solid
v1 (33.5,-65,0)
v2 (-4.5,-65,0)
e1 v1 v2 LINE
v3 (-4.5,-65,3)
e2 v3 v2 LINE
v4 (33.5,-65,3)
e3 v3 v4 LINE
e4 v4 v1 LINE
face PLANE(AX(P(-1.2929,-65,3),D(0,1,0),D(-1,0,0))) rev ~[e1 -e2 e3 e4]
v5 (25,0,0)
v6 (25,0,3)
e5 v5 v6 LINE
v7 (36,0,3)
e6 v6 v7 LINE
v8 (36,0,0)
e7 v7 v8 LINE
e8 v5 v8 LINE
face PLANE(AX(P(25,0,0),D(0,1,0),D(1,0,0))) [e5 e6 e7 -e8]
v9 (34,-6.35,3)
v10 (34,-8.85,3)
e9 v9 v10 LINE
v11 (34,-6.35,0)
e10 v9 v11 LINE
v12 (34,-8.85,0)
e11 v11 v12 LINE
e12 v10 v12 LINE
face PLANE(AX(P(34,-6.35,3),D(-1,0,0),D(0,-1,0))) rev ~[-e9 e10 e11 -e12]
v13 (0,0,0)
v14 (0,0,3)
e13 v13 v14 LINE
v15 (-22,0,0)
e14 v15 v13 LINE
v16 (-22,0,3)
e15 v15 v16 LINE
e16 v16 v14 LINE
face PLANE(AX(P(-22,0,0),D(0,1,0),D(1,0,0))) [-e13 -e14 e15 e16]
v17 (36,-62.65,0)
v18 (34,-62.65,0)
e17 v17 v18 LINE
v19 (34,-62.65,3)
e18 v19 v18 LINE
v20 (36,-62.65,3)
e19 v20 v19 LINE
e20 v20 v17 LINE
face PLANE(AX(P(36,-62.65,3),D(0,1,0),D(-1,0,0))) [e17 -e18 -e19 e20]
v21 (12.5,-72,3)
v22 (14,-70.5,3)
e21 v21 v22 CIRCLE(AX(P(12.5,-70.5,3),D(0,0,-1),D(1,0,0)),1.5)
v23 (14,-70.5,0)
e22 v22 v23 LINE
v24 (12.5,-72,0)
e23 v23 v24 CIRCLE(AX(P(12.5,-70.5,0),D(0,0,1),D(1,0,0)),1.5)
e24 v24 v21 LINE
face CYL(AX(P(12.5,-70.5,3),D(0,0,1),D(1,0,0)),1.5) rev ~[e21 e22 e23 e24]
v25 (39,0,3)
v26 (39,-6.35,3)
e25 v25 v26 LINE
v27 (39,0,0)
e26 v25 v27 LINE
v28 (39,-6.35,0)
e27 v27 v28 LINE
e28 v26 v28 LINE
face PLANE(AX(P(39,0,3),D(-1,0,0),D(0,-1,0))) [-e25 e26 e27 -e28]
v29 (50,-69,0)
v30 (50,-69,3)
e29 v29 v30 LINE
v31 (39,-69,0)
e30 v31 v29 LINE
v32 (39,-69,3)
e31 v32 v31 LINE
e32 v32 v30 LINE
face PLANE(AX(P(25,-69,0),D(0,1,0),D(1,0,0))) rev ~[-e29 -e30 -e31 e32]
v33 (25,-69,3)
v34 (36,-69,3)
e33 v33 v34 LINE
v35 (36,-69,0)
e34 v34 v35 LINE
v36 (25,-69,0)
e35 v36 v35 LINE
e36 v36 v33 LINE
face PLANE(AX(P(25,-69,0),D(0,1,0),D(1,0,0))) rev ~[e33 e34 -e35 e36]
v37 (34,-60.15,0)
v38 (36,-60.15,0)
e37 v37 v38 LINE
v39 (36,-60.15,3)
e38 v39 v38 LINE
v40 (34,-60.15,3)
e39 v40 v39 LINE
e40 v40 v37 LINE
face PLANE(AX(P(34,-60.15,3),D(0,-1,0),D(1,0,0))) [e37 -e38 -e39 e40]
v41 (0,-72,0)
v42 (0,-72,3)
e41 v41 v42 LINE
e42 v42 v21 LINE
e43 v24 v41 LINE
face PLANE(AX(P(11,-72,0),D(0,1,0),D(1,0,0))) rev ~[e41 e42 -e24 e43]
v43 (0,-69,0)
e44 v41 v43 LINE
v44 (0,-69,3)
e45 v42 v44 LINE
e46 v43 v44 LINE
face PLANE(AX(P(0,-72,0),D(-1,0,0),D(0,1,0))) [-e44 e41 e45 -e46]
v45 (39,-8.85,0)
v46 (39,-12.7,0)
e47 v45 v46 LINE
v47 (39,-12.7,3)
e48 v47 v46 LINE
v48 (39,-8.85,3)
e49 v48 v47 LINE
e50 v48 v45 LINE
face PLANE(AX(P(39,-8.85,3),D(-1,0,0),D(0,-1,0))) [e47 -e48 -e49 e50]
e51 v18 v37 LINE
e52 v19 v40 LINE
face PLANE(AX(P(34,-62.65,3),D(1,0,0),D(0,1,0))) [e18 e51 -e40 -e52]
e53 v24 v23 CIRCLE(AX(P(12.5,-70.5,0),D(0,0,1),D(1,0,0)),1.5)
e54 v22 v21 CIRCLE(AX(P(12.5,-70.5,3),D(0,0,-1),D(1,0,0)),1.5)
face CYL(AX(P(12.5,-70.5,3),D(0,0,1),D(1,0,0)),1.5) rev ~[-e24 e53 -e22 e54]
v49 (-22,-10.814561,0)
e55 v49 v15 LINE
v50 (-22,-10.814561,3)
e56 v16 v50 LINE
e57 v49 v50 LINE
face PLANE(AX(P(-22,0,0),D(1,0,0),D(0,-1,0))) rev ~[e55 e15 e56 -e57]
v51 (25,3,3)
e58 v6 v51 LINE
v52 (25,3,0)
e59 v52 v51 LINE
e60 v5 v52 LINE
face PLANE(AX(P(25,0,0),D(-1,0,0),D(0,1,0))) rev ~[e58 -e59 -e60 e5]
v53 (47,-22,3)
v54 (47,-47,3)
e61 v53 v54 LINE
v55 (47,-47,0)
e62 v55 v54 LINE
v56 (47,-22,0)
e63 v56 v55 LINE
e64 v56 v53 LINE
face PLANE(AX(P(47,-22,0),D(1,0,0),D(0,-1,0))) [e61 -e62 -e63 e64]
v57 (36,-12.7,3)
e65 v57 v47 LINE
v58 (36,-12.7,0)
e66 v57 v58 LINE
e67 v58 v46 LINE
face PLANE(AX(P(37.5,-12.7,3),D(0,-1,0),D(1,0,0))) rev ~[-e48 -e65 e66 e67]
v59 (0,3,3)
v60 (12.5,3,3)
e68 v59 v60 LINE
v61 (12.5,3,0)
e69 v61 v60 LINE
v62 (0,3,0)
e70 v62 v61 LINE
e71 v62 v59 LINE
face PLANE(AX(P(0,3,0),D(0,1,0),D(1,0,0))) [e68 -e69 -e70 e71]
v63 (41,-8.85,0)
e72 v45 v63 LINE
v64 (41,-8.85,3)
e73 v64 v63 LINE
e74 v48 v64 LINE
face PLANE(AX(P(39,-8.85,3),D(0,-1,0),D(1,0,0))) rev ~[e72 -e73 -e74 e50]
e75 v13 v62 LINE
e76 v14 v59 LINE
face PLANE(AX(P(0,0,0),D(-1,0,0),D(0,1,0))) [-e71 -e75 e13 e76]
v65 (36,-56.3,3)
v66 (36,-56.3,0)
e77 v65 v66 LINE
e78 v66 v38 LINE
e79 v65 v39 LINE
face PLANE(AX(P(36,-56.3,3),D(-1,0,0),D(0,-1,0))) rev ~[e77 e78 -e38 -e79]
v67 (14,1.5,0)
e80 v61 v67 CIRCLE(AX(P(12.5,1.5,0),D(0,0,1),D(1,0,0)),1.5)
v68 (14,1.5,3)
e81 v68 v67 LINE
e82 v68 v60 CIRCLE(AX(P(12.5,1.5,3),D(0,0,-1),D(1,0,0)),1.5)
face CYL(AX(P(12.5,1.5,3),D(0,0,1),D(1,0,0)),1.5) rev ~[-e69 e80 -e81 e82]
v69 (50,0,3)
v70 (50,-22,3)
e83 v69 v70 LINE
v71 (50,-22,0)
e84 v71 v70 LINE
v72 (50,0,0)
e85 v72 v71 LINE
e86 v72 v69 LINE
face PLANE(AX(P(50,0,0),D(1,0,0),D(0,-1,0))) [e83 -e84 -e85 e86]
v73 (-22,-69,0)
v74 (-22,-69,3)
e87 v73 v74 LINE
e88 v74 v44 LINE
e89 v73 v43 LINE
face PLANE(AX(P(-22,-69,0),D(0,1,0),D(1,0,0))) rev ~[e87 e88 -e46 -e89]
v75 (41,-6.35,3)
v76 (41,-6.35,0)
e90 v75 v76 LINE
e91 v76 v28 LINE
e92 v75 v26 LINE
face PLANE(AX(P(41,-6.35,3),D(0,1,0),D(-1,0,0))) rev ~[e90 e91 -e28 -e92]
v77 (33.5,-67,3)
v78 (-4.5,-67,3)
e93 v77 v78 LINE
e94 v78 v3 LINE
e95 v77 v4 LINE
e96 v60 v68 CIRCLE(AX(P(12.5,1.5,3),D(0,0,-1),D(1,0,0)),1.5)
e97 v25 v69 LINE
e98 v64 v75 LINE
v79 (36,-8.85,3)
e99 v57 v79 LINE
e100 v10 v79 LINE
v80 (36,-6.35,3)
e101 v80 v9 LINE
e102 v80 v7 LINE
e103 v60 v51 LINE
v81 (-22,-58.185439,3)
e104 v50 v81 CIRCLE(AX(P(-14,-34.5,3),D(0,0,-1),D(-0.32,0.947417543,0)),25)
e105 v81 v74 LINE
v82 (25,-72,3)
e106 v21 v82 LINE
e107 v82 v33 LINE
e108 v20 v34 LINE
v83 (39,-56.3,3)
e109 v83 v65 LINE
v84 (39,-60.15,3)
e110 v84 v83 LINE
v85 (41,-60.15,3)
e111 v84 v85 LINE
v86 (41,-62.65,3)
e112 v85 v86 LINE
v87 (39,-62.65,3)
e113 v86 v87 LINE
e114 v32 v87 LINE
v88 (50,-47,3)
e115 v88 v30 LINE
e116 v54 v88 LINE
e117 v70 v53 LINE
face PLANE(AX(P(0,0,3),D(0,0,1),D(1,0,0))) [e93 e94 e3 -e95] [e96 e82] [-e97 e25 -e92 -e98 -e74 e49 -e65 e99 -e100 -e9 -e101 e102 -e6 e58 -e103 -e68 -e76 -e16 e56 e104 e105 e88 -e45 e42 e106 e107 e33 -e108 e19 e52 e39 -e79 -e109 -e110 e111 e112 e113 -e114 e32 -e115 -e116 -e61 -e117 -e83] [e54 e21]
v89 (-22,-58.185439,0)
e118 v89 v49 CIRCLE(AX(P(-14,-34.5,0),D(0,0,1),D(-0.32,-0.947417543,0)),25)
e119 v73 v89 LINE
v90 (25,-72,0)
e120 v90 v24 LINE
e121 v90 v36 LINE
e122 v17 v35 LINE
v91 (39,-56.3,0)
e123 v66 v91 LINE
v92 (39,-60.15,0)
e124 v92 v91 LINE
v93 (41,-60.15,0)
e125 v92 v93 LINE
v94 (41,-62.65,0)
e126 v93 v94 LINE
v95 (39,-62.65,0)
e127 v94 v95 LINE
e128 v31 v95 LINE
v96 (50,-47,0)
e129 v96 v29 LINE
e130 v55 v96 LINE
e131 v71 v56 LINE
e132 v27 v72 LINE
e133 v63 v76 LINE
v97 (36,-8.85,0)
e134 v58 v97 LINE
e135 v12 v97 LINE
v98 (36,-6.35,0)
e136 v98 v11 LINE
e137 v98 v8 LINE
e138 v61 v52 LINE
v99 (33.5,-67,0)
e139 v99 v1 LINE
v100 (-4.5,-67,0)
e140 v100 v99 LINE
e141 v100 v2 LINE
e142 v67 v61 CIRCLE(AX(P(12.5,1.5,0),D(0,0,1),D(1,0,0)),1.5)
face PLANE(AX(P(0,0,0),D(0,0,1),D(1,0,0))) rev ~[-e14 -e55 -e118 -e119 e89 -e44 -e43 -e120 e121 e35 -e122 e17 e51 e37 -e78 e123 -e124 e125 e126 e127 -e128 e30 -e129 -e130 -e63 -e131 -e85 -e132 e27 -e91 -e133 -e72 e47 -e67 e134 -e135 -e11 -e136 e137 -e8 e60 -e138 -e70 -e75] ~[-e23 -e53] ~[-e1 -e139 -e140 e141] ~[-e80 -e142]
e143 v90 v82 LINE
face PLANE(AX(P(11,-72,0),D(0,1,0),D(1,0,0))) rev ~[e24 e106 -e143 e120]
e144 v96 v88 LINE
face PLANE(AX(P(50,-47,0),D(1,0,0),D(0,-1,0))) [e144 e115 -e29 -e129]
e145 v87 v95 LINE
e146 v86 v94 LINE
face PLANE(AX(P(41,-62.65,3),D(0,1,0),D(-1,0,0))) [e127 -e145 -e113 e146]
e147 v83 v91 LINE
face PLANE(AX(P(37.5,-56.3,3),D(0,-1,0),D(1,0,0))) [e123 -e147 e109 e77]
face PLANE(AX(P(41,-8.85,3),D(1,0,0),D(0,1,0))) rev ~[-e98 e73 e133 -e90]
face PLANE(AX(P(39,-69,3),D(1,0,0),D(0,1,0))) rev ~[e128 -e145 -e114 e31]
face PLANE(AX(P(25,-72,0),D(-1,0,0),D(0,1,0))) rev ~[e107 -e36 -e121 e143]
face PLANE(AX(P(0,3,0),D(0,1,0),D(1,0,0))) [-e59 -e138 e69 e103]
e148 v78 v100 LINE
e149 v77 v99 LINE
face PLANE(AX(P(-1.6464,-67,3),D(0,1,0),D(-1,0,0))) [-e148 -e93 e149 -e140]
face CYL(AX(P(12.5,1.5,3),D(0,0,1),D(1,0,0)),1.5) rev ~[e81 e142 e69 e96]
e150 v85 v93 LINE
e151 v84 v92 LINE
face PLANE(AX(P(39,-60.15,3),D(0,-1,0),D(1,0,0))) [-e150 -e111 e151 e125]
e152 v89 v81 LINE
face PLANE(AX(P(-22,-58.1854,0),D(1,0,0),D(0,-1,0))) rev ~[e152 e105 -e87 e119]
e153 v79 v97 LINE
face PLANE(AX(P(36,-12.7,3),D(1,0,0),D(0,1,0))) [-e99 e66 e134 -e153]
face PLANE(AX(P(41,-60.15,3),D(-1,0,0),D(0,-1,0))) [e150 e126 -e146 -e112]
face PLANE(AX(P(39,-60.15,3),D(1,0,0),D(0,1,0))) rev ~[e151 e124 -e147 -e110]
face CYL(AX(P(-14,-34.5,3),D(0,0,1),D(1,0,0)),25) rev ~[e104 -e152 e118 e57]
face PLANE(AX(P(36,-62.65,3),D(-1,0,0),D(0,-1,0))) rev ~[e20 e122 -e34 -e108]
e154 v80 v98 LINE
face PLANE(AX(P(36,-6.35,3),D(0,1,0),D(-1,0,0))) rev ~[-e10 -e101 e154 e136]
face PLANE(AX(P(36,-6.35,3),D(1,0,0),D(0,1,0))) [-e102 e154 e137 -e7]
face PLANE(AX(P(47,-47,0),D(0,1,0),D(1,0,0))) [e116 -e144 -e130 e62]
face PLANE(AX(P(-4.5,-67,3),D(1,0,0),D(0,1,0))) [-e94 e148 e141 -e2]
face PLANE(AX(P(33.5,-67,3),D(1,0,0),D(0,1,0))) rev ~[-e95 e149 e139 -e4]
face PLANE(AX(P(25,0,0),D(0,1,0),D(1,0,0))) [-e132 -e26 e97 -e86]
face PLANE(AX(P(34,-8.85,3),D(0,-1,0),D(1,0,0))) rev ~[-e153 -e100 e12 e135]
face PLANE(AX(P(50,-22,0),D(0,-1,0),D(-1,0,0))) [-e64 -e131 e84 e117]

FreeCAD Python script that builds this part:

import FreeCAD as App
import Part
import Sketcher

V = App.Vector


def add_polygon(sketch, points):
    """Adds a closed chain of lines whose ends are joined by coincident constraints."""
    first, n = sketch.GeometryCount, len(points)
    for a, b in zip(points, points[1:] + points[:1]):
        sketch.addGeometry(Part.LineSegment(App.Vector(*a, 0), App.Vector(*b, 0)), False)
    for i in range(n):
        sketch.addConstraint(Sketcher.Constraint("Coincident", first + i, 2, first + (i + 1) % n, 1))

doc = App.newDocument("Part")
params = doc.addObject("Spreadsheet::Sheet", "Params")
for row, (alias, value) in enumerate([
    ("sketch1_width", "3 mm"),
    ("sketch1_width2", "22 mm"),
    ("sketch1_width3", "25 mm"),
    ("pad1_length", "3 mm"),
    ("sketch2_diameter", "50 mm"),
    ("pocket1_length", "20 mm"),
    ("sketch3_width", "38 mm"),
    ("sketch3_height", "2 mm"),
    ("pocket2_length", "3 mm"),
    ("sketch4_diameter", "3 mm"),
    ("sketch4_width", "2 mm"),
    ("sketch4_width2", "3 mm"),
    ("sketch4_height", "2.5 mm"),
    ("sketch4_height2", "6.35 mm"),
    ("pocket3_length", "25.4 mm"),
], start=1):
    params.set(f"A{row}", alias)
    params.set(f"B{row}", "=" + value)
    params.setAlias(f"B{row}", alias)

body = doc.addObject("PartDesign::Body", "Body")

sketch1 = body.newObject("Sketcher::SketchObject", "Sketch")
sketch1.AttachmentSupport = (doc.getObject("XY_Plane"), [""])
sketch1.MapMode = "FlatFace"
add_polygon(sketch1, [(0, 3), (0, 0), (-22, 0), (-22, -22), (-25, -22), (-25, -47), (-22, -47), (-22, -69), (0, -69), (0, -72), (25, -72), (25, -69), (50, -69), (50, -47), (47, -47), (47, -22), (50, -22), (50, 0), (25, 0), (25, 3)])
sketch1.addConstraint(Sketcher.Constraint("Vertical", 0))
sketch1.addConstraint(Sketcher.Constraint("Horizontal", 1))
sketch1.addConstraint(Sketcher.Constraint("Vertical", 2))
sketch1.addConstraint(Sketcher.Constraint("Horizontal", 3))
sketch1.addConstraint(Sketcher.Constraint("Vertical", 4))
sketch1.addConstraint(Sketcher.Constraint("Horizontal", 5))
sketch1.addConstraint(Sketcher.Constraint("Vertical", 6))
sketch1.addConstraint(Sketcher.Constraint("Horizontal", 7))
sketch1.addConstraint(Sketcher.Constraint("Vertical", 8))
sketch1.addConstraint(Sketcher.Constraint("Horizontal", 9))
sketch1.addConstraint(Sketcher.Constraint("Vertical", 10))
sketch1.addConstraint(Sketcher.Constraint("Horizontal", 11))
sketch1.addConstraint(Sketcher.Constraint("Vertical", 12))
sketch1.addConstraint(Sketcher.Constraint("Horizontal", 13))
sketch1.addConstraint(Sketcher.Constraint("Vertical", 14))
sketch1.addConstraint(Sketcher.Constraint("Horizontal", 15))
sketch1.addConstraint(Sketcher.Constraint("Vertical", 16))
sketch1.addConstraint(Sketcher.Constraint("Horizontal", 17))
sketch1.addConstraint(Sketcher.Constraint("Vertical", 18))
sketch1.addConstraint(Sketcher.Constraint("Horizontal", 19))
sketch1.addConstraint(Sketcher.Constraint("Coincident", 0, 2, -1, 1))
sketch1.addConstraint(Sketcher.Constraint("PointOnObject", 7, 2, -2))
sketch1.addConstraint(Sketcher.Constraint("PointOnObject", 16, 2, -1))
sketch1.addConstraint(Sketcher.Constraint("Horizontal", 7, 2, 10, 2))
sketch1.addConstraint(Sketcher.Constraint("Horizontal", 5, 2, 12, 2))
sketch1.addConstraint(Sketcher.Constraint("Horizontal", 3, 2, 14, 2))
sketch1.addConstraint(Sketcher.Constraint("Vertical", 2, 2, 5, 2))
sketch1.addConstraint(Sketcher.Constraint("Vertical", 12, 2, 15, 2))
sketch1.addConstraint(Sketcher.Constraint("Vertical", 10, 2, 17, 2))
sketch1.addConstraint(Sketcher.Constraint("Equal", 9, 11))
sketch1.addConstraint(Sketcher.Constraint("Equal", 5, 13))
sketch1.addConstraint(Sketcher.Constraint("Equal", 15, 0))
sketch1.addConstraint(Sketcher.Constraint("Equal", 7, 2))
sketch1.addConstraint(Sketcher.Constraint("Equal", 19, 4))
sketch1.addConstraint(Sketcher.Constraint("Equal", 2, 6))
sketch1.addConstraint(Sketcher.Constraint("Equal", 0, 8))
sketch1.addConstraint(Sketcher.Constraint("DistanceX", 3, 2, 3, 1, 3.0))
sketch1.addConstraint(Sketcher.Constraint("DistanceX", 1, 2, 1, 1, 22.0))
sketch1.addConstraint(Sketcher.Constraint("DistanceX", 9, 1, 9, 2, 25.0))
sketch1.setExpression("Constraints[56]", "Params.sketch1_width")
sketch1.setExpression("Constraints[57]", "Params.sketch1_width2")
sketch1.setExpression("Constraints[58]", "Params.sketch1_width3")
pad1 = body.newObject("PartDesign::Pad", "Pad")
pad1.Profile = sketch1
pad1.setExpression("Length", "Params.pad1_length")

sketch2 = body.newObject("Sketcher::SketchObject", "Sketch001")
sketch2.AttachmentSupport = (doc.getObject("XY_Plane"), [""])
sketch2.MapMode = "FlatFace"
sketch2.AttachmentOffset = App.Placement(V(0, 0, 3), App.Rotation())
sketch2.addGeometry(Part.Circle(V(-14, -34, 0), V(0, 0, 1), 25), False)
sketch2.addConstraint(Sketcher.Constraint("Diameter", 0, 50.0))
sketch2.addConstraint(Sketcher.Constraint("DistanceX", 0, 3, -1, 1, 14.0))
sketch2.addConstraint(Sketcher.Constraint("DistanceY", 0, 3, -1, 1, 34.5))
sketch2.setExpression("Constraints[0]", "Params.sketch2_diameter")
pocket1 = body.newObject("PartDesign::Pocket", "Pocket")
pocket1.Profile = sketch2
pocket1.setExpression("Length", "Params.pocket1_length")

sketch3 = body.newObject("Sketcher::SketchObject", "Sketch002")
sketch3.AttachmentSupport = (doc.getObject("XY_Plane"), [""])
sketch3.MapMode = "FlatFace"
sketch3.AttachmentOffset = App.Placement(V(0, 0, 3), App.Rotation())
add_polygon(sketch3, [(33.5, -65), (-4.5, -65), (-4.5, -67), (33.5, -67)])
sketch3.addConstraint(Sketcher.Constraint("Horizontal", 0))
sketch3.addConstraint(Sketcher.Constraint("Vertical", 1))
sketch3.addConstraint(Sketcher.Constraint("Horizontal", 2))
sketch3.addConstraint(Sketcher.Constraint("Vertical", 3))
sketch3.addConstraint(Sketcher.Constraint("DistanceX", 0, 2, 0, 1, 38.0))
sketch3.addConstraint(Sketcher.Constraint("DistanceY", 1, 2, 1, 1, 2.0))
sketch3.addConstraint(Sketcher.Constraint("DistanceY", 0, 2, -1, 1, 65.0))
sketch3.addConstraint(Sketcher.Constraint("DistanceX", 0, 2, -1, 1, 4.5))
sketch3.setExpression("Constraints[8]", "Params.sketch3_width")
sketch3.setExpression("Constraints[9]", "Params.sketch3_height")
pocket2 = body.newObject("PartDesign::Pocket", "Pocket001")
pocket2.Profile = sketch3
pocket2.setExpression("Length", "Params.pocket2_length")

sketch4 = body.newObject("Sketcher::SketchObject", "Sketch003")
sketch4.AttachmentSupport = (doc.getObject("XY_Plane"), [""])
sketch4.MapMode = "FlatFace"
sketch4.AttachmentOffset = App.Placement(V(0, 0, 3), App.Rotation())
sketch4.addGeometry(Part.Circle(V(12.5, 1.5, 0), V(0, 0, 1), 1.5), False)
sketch4.addGeometry(Part.Circle(V(12.5, -70.5, 0), V(0, 0, 1), 1.5), False)
add_polygon(sketch4, [(39, -69), (39, -62.6), (41, -62.6), (41, -60.1), (39, -60.1), (39, -56.3), (36, -56.3), (36, -60.1), (34, -60.1), (34, -62.6), (36, -62.6), (36, -69)])
add_polygon(sketch4, [(39, -6.3), (39, 0), (36, 0), (36, -6.3), (34, -6.3), (34, -8.8), (36, -8.8), (36, -12.7), (39, -12.7), (39, -8.8), (41, -8.8), (41, -6.3)])
sketch4.addConstraint(Sketcher.Constraint("Vertical", 2))
sketch4.addConstraint(Sketcher.Constraint("Horizontal", 3))
sketch4.addConstraint(Sketcher.Constraint("Vertical", 4))
sketch4.addConstraint(Sketcher.Constraint("Horizontal", 5))
sketch4.addConstraint(Sketcher.Constraint("Vertical", 6))
sketch4.addConstraint(Sketcher.Constraint("Horizontal", 7))
sketch4.addConstraint(Sketcher.Constraint("Vertical", 8))
sketch4.addConstraint(Sketcher.Constraint("Horizontal", 9))
sketch4.addConstraint(Sketcher.Constraint("Vertical", 10))
sketch4.addConstraint(Sketcher.Constraint("Horizontal", 11))
sketch4.addConstraint(Sketcher.Constraint("Vertical", 12))
sketch4.addConstraint(Sketcher.Constraint("Horizontal", 13))
sketch4.addConstraint(Sketcher.Constraint("Vertical", 14))
sketch4.addConstraint(Sketcher.Constraint("Horizontal", 15))
sketch4.addConstraint(Sketcher.Constraint("Vertical", 16))
sketch4.addConstraint(Sketcher.Constraint("Horizontal", 17))
sketch4.addConstraint(Sketcher.Constraint("Vertical", 18))
sketch4.addConstraint(Sketcher.Constraint("Horizontal", 19))
sketch4.addConstraint(Sketcher.Constraint("Vertical", 20))
sketch4.addConstraint(Sketcher.Constraint("Horizontal", 21))
sketch4.addConstraint(Sketcher.Constraint("Vertical", 22))
sketch4.addConstraint(Sketcher.Constraint("Horizontal", 23))
sketch4.addConstraint(Sketcher.Constraint("Vertical", 24))
sketch4.addConstraint(Sketcher.Constraint("Horizontal", 25))
sketch4.addConstraint(Sketcher.Constraint("Equal", 0, 1))
sketch4.addConstraint(Sketcher.Constraint("PointOnObject", 14, 2, -1))
sketch4.addConstraint(Sketcher.Constraint("Horizontal", 5, 2, 8, 2))
sketch4.addConstraint(Sketcher.Constraint("Horizontal", 3, 2, 10, 2))
sketch4.addConstraint(Sketcher.Constraint("Horizontal", 19, 2, 22, 2))
sketch4.addConstraint(Sketcher.Constraint("Horizontal", 17, 2, 24, 2))
sketch4.addConstraint(Sketcher.Constraint("Vertical", 0, 3, 1, 3))
sketch4.addConstraint(Sketcher.Constraint("Vertical", 2, 2, 5, 2))
sketch4.addConstraint(Sketcher.Constraint("Vertical", 8, 2, 11, 2))
sketch4.addConstraint(Sketcher.Constraint("Vertical", 13, 2, 14, 2))
sketch4.addConstraint(Sketcher.Constraint("Vertical", 12, 2, 15, 2))
sketch4.addConstraint(Sketcher.Constraint("Vertical", 10, 2, 17, 2))
sketch4.addConstraint(Sketcher.Constraint("Vertical", 16, 2, 19, 2))
sketch4.addConstraint(Sketcher.Constraint("Vertical", 14, 2, 21, 2))
sketch4.addConstraint(Sketcher.Constraint("Vertical", 4, 2, 23, 2))
sketch4.addConstraint(Sketcher.Constraint("Equal", 5, 9))
sketch4.addConstraint(Sketcher.Constraint("Equal", 12, 14))
sketch4.addConstraint(Sketcher.Constraint("Equal", 10, 18))
sketch4.addConstraint(Sketcher.Constraint("Equal", 8, 20))
sketch4.addConstraint(Sketcher.Constraint("Diameter", 0, 3.0))
sketch4.addConstraint(Sketcher.Constraint("DistanceX", 3, 1, 3, 2, 2.0))
sketch4.addConstraint(Sketcher.Constraint("DistanceX", 7, 2, 7, 1, 3.0))
sketch4.addConstraint(Sketcher.Constraint("DistanceY", 4, 1, 4, 2, 2.5))
sketch4.addConstraint(Sketcher.Constraint("DistanceY", -1, 1, 0, 3, 1.5))
sketch4.addConstraint(Sketcher.Constraint("DistanceY", 20, 2, -1, 1, 12.7))
sketch4.addConstraint(Sketcher.Constraint("DistanceX", -1, 1, 2, 2, 39.0))
sketch4.addConstraint(Sketcher.Constraint("DistanceY", 12, 2, -1, 1, 69.0))
sketch4.addConstraint(Sketcher.Constraint("DistanceY", 1, 3, 0, 3, 72.0))
sketch4.addConstraint(Sketcher.Constraint("DistanceY", 2, 1, 2, 2, 6.35))
sketch4.addConstraint(Sketcher.Constraint("DistanceX", -1, 1, 0, 3, 12.5))
sketch4.setExpression("Constraints[67]", "Params.sketch4_diameter")
sketch4.setExpression("Constraints[68]", "Params.sketch4_width")
sketch4.setExpression("Constraints[69]", "Params.sketch4_width2")
sketch4.setExpression("Constraints[70]", "Params.sketch4_height")
sketch4.setExpression("Constraints[76]", "Params.sketch4_height2")
pocket3 = body.newObject("PartDesign::Pocket", "Pocket002")
pocket3.Profile = sketch4
pocket3.setExpression("Length", "Params.pocket3_length")

doc.recompute()
